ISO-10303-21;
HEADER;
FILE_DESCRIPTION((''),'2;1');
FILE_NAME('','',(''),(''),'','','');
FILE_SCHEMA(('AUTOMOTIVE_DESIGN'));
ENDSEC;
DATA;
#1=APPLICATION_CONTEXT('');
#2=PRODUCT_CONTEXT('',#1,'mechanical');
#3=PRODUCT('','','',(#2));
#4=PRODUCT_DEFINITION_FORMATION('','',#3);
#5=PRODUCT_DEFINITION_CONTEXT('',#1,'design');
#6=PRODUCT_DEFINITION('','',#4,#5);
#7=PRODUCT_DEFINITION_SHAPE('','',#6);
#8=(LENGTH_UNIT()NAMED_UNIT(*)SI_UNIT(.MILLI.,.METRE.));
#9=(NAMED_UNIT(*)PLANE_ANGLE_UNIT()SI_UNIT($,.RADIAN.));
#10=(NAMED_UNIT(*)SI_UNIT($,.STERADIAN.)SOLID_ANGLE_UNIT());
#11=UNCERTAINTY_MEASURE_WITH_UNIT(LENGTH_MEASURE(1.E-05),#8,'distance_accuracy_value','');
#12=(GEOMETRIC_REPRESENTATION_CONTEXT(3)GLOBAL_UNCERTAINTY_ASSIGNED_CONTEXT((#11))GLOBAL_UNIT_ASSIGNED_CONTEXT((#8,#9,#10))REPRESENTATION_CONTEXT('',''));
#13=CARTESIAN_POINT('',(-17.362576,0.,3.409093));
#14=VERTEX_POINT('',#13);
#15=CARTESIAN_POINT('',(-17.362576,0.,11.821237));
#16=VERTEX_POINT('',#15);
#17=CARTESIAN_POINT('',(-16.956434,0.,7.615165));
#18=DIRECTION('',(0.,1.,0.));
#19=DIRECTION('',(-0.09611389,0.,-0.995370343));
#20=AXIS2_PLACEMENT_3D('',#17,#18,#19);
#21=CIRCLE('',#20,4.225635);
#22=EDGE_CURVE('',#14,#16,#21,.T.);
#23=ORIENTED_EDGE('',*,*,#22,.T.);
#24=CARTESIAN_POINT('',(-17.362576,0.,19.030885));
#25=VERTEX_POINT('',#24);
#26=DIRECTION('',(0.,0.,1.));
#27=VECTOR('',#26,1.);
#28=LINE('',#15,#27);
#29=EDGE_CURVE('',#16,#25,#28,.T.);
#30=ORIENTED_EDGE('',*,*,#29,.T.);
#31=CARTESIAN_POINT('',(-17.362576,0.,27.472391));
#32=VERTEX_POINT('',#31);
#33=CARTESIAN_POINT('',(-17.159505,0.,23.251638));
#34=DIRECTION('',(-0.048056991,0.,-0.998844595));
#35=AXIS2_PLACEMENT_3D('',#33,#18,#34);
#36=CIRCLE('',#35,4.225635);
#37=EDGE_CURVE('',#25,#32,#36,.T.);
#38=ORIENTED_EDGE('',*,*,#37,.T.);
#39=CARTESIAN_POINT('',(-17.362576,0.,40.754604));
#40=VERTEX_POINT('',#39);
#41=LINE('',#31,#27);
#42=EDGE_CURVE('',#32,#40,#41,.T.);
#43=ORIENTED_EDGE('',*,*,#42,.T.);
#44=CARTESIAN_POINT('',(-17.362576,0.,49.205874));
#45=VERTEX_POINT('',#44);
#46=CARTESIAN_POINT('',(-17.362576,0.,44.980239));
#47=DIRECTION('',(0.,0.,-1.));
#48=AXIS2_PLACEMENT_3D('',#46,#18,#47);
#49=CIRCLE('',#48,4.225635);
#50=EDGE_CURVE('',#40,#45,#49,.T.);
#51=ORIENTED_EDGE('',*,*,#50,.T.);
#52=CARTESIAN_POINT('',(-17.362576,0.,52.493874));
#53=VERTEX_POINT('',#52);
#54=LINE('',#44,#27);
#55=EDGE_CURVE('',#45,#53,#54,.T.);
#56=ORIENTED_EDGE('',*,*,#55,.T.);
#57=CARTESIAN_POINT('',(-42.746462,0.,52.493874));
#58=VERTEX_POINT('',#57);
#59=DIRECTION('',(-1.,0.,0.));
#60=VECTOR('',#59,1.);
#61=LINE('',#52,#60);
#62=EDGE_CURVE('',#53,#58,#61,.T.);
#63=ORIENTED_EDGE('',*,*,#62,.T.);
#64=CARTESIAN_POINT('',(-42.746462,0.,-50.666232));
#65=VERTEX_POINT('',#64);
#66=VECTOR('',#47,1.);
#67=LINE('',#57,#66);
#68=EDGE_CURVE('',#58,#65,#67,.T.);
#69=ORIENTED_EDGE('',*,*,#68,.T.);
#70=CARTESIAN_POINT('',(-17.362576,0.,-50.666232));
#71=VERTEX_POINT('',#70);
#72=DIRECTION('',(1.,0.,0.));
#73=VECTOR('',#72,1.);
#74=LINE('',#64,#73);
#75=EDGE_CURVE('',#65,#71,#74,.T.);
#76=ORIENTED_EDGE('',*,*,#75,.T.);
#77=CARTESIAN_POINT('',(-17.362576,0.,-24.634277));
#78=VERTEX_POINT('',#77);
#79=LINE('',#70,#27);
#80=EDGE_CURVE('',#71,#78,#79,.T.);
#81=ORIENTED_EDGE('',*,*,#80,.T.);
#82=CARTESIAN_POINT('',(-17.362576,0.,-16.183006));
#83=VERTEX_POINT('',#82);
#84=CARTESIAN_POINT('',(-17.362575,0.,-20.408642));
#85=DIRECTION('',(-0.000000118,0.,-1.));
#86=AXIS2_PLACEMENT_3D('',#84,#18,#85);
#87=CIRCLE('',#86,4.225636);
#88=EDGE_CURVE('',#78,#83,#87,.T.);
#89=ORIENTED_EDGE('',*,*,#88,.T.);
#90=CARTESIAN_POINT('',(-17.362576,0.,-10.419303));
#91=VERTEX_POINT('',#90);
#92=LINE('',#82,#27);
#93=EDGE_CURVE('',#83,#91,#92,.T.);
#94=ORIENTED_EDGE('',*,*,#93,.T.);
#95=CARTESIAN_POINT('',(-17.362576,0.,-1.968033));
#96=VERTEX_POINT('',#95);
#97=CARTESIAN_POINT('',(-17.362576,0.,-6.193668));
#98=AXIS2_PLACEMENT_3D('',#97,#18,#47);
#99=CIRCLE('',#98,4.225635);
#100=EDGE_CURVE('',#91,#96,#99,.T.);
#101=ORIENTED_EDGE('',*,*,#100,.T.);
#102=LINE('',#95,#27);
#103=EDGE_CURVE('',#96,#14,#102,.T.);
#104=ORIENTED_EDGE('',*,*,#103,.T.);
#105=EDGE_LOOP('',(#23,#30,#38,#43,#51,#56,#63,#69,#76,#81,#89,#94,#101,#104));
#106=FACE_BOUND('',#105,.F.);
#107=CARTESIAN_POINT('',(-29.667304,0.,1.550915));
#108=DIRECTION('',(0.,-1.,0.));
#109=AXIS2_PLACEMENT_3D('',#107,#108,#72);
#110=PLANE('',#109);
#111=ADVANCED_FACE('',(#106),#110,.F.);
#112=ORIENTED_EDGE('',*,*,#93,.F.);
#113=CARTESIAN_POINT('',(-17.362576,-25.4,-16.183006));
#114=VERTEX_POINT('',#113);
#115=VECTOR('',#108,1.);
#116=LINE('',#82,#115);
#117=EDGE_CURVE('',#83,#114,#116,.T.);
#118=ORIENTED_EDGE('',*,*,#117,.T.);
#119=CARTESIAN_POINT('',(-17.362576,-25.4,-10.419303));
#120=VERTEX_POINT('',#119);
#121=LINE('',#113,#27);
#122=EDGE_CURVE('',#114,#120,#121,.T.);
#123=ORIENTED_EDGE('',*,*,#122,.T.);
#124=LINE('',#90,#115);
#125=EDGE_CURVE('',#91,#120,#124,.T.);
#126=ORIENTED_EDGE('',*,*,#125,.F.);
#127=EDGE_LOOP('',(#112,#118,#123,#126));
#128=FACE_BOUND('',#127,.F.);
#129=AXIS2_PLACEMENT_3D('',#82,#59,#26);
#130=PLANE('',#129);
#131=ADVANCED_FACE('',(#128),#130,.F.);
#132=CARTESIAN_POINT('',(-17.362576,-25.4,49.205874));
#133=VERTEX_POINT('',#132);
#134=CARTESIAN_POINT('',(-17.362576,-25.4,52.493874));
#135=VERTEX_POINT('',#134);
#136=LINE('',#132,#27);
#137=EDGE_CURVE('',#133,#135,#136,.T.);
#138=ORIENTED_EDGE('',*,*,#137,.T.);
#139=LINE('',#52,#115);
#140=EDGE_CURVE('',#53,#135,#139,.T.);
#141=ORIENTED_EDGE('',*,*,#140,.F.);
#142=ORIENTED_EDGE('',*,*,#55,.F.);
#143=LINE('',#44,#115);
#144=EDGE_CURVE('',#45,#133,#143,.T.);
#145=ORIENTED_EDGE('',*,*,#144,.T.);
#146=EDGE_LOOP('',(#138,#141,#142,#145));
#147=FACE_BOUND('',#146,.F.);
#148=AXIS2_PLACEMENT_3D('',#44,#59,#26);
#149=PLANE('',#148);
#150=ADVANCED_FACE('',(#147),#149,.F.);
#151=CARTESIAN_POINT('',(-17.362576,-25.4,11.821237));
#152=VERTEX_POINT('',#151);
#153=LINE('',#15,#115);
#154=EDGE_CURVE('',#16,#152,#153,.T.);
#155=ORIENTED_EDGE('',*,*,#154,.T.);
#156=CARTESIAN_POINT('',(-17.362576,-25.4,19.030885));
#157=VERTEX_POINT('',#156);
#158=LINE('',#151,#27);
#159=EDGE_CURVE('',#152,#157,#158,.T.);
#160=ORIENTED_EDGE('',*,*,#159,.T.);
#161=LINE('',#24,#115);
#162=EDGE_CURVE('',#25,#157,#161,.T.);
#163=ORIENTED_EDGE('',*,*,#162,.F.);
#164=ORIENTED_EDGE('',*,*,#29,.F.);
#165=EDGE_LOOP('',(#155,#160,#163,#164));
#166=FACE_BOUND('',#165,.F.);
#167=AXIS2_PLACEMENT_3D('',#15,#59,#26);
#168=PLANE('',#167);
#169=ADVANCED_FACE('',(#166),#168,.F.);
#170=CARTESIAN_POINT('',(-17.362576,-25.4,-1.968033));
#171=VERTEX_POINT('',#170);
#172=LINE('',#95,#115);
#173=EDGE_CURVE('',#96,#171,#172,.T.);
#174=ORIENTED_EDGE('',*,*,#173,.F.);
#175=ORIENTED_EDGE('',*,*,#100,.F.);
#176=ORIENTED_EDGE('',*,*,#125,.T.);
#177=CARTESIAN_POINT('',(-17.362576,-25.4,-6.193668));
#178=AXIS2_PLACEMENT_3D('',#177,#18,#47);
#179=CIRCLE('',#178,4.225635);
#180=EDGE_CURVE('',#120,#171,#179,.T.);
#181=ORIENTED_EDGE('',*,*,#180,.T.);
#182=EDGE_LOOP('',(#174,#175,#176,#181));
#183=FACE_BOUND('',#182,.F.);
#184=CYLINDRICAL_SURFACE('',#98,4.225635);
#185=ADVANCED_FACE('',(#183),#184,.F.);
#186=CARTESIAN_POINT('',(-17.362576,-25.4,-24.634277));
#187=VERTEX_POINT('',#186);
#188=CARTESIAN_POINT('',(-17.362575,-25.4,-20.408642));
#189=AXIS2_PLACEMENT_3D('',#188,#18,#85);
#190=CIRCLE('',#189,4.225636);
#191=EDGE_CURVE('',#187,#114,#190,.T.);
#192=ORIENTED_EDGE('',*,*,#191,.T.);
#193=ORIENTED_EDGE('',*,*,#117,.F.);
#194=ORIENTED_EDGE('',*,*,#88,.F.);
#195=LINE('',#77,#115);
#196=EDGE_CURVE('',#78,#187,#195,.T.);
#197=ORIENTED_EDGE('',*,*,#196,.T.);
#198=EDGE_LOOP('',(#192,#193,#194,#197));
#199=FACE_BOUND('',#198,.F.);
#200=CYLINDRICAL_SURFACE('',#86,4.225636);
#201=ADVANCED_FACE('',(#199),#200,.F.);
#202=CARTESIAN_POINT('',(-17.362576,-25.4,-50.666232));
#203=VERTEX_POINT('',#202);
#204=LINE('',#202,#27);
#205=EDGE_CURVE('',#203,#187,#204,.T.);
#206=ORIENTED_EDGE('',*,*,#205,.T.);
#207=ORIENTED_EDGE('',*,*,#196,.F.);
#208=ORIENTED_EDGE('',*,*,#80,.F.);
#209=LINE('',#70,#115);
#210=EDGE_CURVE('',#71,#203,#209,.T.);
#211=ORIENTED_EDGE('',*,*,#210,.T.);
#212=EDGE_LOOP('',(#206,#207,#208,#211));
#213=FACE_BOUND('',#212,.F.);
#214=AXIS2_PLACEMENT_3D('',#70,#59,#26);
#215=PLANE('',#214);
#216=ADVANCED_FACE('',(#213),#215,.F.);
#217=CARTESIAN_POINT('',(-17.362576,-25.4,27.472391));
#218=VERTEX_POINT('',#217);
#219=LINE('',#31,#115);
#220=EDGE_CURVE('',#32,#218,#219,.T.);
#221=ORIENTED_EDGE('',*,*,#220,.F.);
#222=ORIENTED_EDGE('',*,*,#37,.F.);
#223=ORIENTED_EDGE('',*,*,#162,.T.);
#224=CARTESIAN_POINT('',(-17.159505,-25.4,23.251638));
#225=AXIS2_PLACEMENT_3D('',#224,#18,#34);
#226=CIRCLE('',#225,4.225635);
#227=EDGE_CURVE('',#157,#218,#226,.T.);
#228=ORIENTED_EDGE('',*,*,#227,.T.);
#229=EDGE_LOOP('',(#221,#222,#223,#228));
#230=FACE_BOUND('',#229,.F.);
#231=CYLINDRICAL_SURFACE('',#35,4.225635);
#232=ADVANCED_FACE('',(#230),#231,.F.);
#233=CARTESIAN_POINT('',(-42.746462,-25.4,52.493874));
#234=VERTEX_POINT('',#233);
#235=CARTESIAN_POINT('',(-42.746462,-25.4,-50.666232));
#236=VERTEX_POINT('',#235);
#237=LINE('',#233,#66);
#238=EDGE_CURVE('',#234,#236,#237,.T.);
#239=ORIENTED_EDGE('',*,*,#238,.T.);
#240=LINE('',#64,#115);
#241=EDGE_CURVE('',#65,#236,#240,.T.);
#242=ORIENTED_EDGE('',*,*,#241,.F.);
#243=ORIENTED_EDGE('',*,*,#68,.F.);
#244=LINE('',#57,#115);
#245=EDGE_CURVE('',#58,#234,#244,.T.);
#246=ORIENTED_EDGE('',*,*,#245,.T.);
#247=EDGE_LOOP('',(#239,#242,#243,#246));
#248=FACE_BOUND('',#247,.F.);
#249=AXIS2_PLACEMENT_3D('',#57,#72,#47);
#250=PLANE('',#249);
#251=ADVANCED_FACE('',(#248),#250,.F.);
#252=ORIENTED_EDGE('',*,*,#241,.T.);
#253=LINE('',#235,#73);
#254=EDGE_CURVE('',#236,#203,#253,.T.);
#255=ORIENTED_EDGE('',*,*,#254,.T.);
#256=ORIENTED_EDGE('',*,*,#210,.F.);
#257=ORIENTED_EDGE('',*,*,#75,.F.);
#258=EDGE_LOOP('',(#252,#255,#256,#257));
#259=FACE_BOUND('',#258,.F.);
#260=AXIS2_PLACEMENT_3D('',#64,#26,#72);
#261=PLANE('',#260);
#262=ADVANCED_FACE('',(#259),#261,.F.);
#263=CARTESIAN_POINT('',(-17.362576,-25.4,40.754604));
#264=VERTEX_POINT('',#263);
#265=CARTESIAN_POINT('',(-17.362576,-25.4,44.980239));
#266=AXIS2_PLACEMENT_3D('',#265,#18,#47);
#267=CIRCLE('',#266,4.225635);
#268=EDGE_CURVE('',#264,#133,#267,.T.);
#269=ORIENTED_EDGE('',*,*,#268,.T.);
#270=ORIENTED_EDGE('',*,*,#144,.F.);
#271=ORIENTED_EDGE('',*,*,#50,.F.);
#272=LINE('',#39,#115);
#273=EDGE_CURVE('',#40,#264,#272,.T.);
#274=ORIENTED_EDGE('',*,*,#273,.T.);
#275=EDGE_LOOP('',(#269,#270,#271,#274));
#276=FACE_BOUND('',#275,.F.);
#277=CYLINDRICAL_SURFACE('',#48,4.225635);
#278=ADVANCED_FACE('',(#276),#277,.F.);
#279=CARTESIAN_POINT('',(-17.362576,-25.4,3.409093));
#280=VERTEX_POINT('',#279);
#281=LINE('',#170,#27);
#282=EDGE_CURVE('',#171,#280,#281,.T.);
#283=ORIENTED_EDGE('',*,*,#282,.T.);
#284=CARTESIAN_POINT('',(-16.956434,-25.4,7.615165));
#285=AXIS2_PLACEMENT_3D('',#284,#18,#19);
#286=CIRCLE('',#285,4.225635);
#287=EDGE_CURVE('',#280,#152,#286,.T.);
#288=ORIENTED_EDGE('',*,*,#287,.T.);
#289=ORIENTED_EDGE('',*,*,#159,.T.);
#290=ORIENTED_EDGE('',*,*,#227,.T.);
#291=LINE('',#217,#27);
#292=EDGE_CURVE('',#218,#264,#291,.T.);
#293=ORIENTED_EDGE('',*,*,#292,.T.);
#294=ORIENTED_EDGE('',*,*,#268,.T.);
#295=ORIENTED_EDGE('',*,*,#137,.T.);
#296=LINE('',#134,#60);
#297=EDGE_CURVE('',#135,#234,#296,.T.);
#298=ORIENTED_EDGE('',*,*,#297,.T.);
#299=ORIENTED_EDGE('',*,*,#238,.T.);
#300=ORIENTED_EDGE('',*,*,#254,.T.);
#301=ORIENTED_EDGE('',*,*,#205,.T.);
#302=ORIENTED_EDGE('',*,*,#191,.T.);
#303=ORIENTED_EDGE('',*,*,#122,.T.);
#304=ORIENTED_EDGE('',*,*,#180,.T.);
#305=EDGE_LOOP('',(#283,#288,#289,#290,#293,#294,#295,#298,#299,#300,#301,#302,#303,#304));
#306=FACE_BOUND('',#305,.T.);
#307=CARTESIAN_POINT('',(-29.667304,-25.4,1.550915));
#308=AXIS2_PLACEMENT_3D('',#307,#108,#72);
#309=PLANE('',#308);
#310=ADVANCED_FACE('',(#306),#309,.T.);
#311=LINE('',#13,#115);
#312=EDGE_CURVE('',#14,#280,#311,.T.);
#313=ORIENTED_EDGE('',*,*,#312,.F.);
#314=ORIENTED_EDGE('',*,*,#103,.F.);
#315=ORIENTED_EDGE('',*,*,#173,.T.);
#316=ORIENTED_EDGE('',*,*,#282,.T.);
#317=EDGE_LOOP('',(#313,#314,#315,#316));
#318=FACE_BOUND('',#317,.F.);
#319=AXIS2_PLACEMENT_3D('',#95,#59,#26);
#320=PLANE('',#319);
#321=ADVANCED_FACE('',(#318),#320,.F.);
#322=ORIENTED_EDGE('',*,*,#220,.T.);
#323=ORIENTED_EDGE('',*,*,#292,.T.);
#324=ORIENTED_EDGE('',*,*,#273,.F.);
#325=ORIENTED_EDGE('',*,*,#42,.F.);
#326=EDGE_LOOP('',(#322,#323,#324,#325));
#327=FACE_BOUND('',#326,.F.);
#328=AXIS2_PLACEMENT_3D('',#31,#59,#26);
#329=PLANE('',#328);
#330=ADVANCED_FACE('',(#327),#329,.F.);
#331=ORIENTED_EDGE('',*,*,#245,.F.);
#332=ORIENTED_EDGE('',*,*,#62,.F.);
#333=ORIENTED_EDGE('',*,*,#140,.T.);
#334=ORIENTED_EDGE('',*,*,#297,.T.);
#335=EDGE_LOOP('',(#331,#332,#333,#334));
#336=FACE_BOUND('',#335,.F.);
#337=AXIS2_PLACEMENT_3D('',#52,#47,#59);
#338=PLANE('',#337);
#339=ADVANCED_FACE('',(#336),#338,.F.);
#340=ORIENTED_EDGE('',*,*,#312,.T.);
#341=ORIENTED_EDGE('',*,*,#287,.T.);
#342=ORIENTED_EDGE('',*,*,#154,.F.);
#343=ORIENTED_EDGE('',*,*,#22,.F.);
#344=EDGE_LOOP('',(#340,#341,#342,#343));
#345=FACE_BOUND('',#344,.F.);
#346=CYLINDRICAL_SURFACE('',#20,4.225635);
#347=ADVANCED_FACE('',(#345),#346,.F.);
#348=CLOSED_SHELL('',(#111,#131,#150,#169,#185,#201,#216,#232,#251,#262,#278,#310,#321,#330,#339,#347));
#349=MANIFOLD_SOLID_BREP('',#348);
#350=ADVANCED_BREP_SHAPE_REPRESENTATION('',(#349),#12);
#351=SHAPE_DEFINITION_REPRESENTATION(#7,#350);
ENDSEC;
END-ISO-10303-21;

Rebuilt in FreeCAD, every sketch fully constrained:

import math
import FreeCAD as App
import Part
import Sketcher
Q = App.Units.Quantity

doc = App.newDocument("Part")
body = doc.addObject("PartDesign::Body", "Body")

sketch1 = doc.addObject("Sketcher::SketchObject", "Sketch")
body.addObject(sketch1)
sketch1.AttachmentSupport = (doc.XZ_Plane, [""])
sketch1.MapMode = "FlatFace"
sketch1.addGeometry([
    Part.LineSegment(App.Vector(-17.362576, 52.493874, 0), App.Vector(-42.746462, 52.493874, 0)),
    Part.LineSegment(App.Vector(-42.746462, 52.493874, 0), App.Vector(-42.746462, -50.666232, 0)),
    Part.LineSegment(App.Vector(-42.746462, -50.666232, 0), App.Vector(-17.362576, -50.666232, 0)),
    Part.LineSegment(App.Vector(-17.362576, -50.666232, 0), App.Vector(-17.362576, -24.634277, 0)),
    Part.ArcOfCircle(Part.Circle(App.Vector(-17.362575, -20.408642, 0), App.Vector(0, 0, 1), 4.225636), math.radians(90.000007), math.radians(269.999993)),
    Part.LineSegment(App.Vector(-17.362576, -16.183006, 0), App.Vector(-17.362576, -10.419303, 0)),
    Part.ArcOfCircle(Part.Circle(App.Vector(-17.362576, -6.193668, 0), App.Vector(0, 0, 1), 4.225635), math.radians(90), math.radians(270)),
    Part.LineSegment(App.Vector(-17.362576, -1.968033, 0), App.Vector(-17.362576, 3.409093, 0)),
    Part.ArcOfCircle(Part.Circle(App.Vector(-16.956434, 7.615165, 0), App.Vector(0, 0, 1), 4.225635), math.radians(95.515434), math.radians(264.484566)),
    Part.LineSegment(App.Vector(-17.362576, 11.821237, 0), App.Vector(-17.362576, 19.030885, 0)),
    Part.ArcOfCircle(Part.Circle(App.Vector(-17.159505, 23.251638, 0), App.Vector(0, 0, 1), 4.225635), math.radians(92.754524), math.radians(267.245476)),
    Part.LineSegment(App.Vector(-17.362576, 27.472391, 0), App.Vector(-17.362576, 40.754604, 0)),
    Part.ArcOfCircle(Part.Circle(App.Vector(-17.362576, 44.980239, 0), App.Vector(0, 0, 1), 4.225635), math.radians(90), math.radians(270)),
    Part.LineSegment(App.Vector(-17.362576, 49.205874, 0), App.Vector(-17.362576, 52.493874, 0)),
], False)
sketch1.addConstraint([
    Sketcher.Constraint("Coincident", 0, 2, 1, 1),
    Sketcher.Constraint("Coincident", 1, 2, 2, 1),
    Sketcher.Constraint("Coincident", 2, 2, 3, 1),
    Sketcher.Constraint("Coincident", 3, 2, 4, 2),
    Sketcher.Constraint("Coincident", 4, 1, 5, 1),
    Sketcher.Constraint("Coincident", 5, 2, 6, 2),
    Sketcher.Constraint("Coincident", 6, 1, 7, 1),
    Sketcher.Constraint("Coincident", 7, 2, 8, 2),
    Sketcher.Constraint("Coincident", 8, 1, 9, 1),
    Sketcher.Constraint("Coincident", 9, 2, 10, 2),
    Sketcher.Constraint("Coincident", 10, 1, 11, 1),
    Sketcher.Constraint("Coincident", 11, 2, 12, 2),
    Sketcher.Constraint("Coincident", 12, 1, 13, 1),
    Sketcher.Constraint("Coincident", 13, 2, 0, 1),
    Sketcher.Constraint("Horizontal", 0),
    Sketcher.Constraint("Vertical", 1),
    Sketcher.Constraint("Horizontal", 2),
    Sketcher.Constraint("Vertical", 3),
    Sketcher.Constraint("Vertical", 5),
    Sketcher.Constraint("Vertical", 7),
    Sketcher.Constraint("Vertical", 9),
    Sketcher.Constraint("Vertical", 11),
    Sketcher.Constraint("Vertical", 13),
    Sketcher.Constraint("Equal", 4, 6),
    Sketcher.Constraint("Equal", 6, 8),
    Sketcher.Constraint("Equal", 8, 10),
    Sketcher.Constraint("Equal", 10, 12),
    Sketcher.Constraint("Vertical", 4, 3, 6, 3),
    Sketcher.Constraint("Vertical", 6, 3, 12, 3),
    Sketcher.Constraint("Vertical", 12, 3, 2, 2),
    Sketcher.Constraint("Vertical", 3, 2, 4, 1),
    Sketcher.Constraint("Vertical", 5, 2, 6, 1),
    Sketcher.Constraint("Vertical", 7, 2, 8, 1),
    Sketcher.Constraint("Vertical", 9, 2, 10, 1),
    Sketcher.Constraint("Vertical", 11, 2, 12, 1),
    Sketcher.Constraint("DistanceY", 13, 1, 13, 2, 3.288),
    Sketcher.Constraint("Radius", 4, 4.225636),
    Sketcher.Constraint("DistanceY", 9, 1, 9, 2, 7.209648),
    Sketcher.Constraint("DistanceY", 10, 3, 12, 3, 21.728601),
    Sketcher.Constraint("DistanceY", 4, 1, 7, 2, 19.592099),
    Sketcher.Constraint("DistanceY", 8, 1, 10, 3, 11.430401),
    Sketcher.Constraint("DistanceX", 0, 2, 0, 1, 25.383886),
    Sketcher.Constraint("DistanceY", 1, 2, 1, 1, 103.160106),
    Sketcher.Constraint("DistanceY", 3, 1, 3, 2, 26.031955),
    Sketcher.Constraint("DistanceY", 5, 1, 5, 2, 5.763703),
    Sketcher.Constraint("DistanceY", 4, 3, -1, 1, 20.408642),
    Sketcher.Constraint("DistanceX", 4, 3, -1, 1, 17.362575),
])
pad1 = doc.addObject("PartDesign::Pad", "Pad")
body.addObject(pad1)
pad1.Profile = sketch1
pad1.Length = Q("1 in")

doc.recompute()
